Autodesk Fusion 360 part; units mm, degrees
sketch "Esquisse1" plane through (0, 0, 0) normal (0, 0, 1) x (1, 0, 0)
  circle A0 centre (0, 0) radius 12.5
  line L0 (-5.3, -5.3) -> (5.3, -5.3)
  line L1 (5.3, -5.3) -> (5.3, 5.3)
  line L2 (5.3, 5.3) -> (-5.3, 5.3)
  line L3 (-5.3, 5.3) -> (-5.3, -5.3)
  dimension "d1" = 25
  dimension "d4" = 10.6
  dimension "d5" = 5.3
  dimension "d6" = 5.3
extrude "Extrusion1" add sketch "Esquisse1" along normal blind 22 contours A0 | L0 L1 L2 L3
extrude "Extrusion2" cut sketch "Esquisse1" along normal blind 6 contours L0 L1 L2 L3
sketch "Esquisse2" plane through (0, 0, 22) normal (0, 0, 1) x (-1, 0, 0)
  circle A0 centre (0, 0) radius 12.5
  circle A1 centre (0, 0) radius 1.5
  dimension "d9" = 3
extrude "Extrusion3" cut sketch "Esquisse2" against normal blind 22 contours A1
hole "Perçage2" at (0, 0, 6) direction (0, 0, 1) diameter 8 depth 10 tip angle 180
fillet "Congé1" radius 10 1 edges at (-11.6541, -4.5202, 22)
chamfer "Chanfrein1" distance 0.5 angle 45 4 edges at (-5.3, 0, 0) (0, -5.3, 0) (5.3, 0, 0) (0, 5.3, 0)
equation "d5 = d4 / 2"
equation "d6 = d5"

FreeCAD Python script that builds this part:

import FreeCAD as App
import Part
import Sketcher
from FreeCAD import Vector


def edges_at(feature, points):
    """Names of the edges that pass closest to the given points."""
    edges = feature.Shape.Edges
    near = lambda p: min(range(len(edges)), key=lambda i: edges[i].distToShape(Part.Vertex(*p))[0])
    return sorted({f"Edge{near(p) + 1}" for p in points})


def add_polygon(sketch, points):
    """Adds a closed chain of lines whose ends are joined by coincident constraints."""
    first, n = sketch.GeometryCount, len(points)
    for a, b in zip(points, points[1:] + points[:1]):
        sketch.addGeometry(Part.LineSegment(App.Vector(*a, 0), App.Vector(*b, 0)), False)
    for i in range(n):
        sketch.addConstraint(Sketcher.Constraint("Coincident", first + i, 2, first + (i + 1) % n, 1))

doc = App.newDocument("Part")
body = doc.addObject("PartDesign::Body", "Body")

sketch1 = doc.addObject("Sketcher::SketchObject", "Sketch")
body.addObject(sketch1)
sketch1.AttachmentSupport = (doc.XY_Plane, [""])
sketch1.MapMode = "FlatFace"
sketch1.addGeometry(Part.Circle(Vector(0, 0, 0), Vector(0, 0, 1), 12.5), False)
sketch1.addConstraint([
    Sketcher.Constraint("Coincident", 0, 3, -1, 1),
    Sketcher.Constraint("Diameter", 0, 25.0),
])
pad1 = doc.addObject("PartDesign::Pad", "Pad")
body.addObject(pad1)
pad1.Profile = sketch1
pad1.Length = 22

sketch2 = doc.addObject("Sketcher::SketchObject", "Sketch001")
body.addObject(sketch2)
sketch2.AttachmentSupport = (doc.XY_Plane, [""])
sketch2.MapMode = "FlatFace"
add_polygon(sketch2, [(-5.3, 5.3), (-5.3, -5.3), (5.3, -5.3), (5.3, 5.3)])
sketch2.addConstraint([
    Sketcher.Constraint("Vertical", 0),
    Sketcher.Constraint("Horizontal", 1),
    Sketcher.Constraint("Vertical", 2),
    Sketcher.Constraint("Horizontal", 3),
    Sketcher.Constraint("Symmetric", 0, 2, 2, 2, -1, 1),
    Sketcher.Constraint("Equal", 3, 0),
    Sketcher.Constraint("DistanceX", 1, 1, 1, 2, 10.6),
])
pocket1 = doc.addObject("PartDesign::Pocket", "Pocket")
body.addObject(pocket1)
pocket1.Profile = sketch2
pocket1.Length = 6
pocket1.Reversed = True

sketch3 = doc.addObject("Sketcher::SketchObject", "Sketch002")
body.addObject(sketch3)
sketch3.AttachmentSupport = (doc.XY_Plane, [""])
sketch3.MapMode = "FlatFace"
sketch3.AttachmentOffset = App.Placement(Vector(0, 0, 22), App.Rotation())
sketch3.addGeometry(Part.Circle(Vector(0, 0, 0), Vector(0, 0, 1), 1.5), False)
sketch3.addConstraint([
    Sketcher.Constraint("Coincident", 0, 3, -1, 1),
    Sketcher.Constraint("Diameter", 0, 3.0),
])
pocket2 = doc.addObject("PartDesign::Pocket", "Pocket001")
body.addObject(pocket2)
pocket2.Profile = sketch3
pocket2.Length = 22

sketch4 = doc.addObject("Sketcher::SketchObject", "Sketch003")
body.addObject(sketch4)
sketch4.AttachmentSupport = (doc.XY_Plane, [""])
sketch4.MapMode = "FlatFace"
sketch4.AttachmentOffset = App.Placement(Vector(0, 0, 6), App.Rotation())
sketch4.addGeometry(Part.Circle(Vector(0, 0, 0), Vector(0, 0, 1), 4), False)
sketch4.addConstraint([
    Sketcher.Constraint("Coincident", 0, 3, -1, 1),
    Sketcher.Constraint("Diameter", 0, 8.0),
])
doc.recompute()
hole = doc.addObject("PartDesign::Hole", "Hole")
body.addObject(hole)
hole.Profile = sketch4
hole.ThreadType = "None"
hole.Diameter = 8
hole.DepthType = "Dimension"
hole.Depth = 10
hole.DrillPoint = "Flat"
hole.Reversed = True
doc.recompute()

fillet = doc.addObject("PartDesign::Fillet", "Fillet")
body.addObject(fillet)
fillet.Base = (hole, edges_at(hole, [(-11.654, -4.52, 22)]))
fillet.Radius = 10
doc.recompute()

chamfer = doc.addObject("PartDesign::Chamfer", "Chamfer")
body.addObject(chamfer)
chamfer.Base = (fillet, edges_at(fillet, [
    (-5.3, 0, 0),
    (0, -5.3, 0),
    (5.3, 0, 0),
    (0, 5.3, 0),
]))
chamfer.Size = 0.5

doc.recompute()
